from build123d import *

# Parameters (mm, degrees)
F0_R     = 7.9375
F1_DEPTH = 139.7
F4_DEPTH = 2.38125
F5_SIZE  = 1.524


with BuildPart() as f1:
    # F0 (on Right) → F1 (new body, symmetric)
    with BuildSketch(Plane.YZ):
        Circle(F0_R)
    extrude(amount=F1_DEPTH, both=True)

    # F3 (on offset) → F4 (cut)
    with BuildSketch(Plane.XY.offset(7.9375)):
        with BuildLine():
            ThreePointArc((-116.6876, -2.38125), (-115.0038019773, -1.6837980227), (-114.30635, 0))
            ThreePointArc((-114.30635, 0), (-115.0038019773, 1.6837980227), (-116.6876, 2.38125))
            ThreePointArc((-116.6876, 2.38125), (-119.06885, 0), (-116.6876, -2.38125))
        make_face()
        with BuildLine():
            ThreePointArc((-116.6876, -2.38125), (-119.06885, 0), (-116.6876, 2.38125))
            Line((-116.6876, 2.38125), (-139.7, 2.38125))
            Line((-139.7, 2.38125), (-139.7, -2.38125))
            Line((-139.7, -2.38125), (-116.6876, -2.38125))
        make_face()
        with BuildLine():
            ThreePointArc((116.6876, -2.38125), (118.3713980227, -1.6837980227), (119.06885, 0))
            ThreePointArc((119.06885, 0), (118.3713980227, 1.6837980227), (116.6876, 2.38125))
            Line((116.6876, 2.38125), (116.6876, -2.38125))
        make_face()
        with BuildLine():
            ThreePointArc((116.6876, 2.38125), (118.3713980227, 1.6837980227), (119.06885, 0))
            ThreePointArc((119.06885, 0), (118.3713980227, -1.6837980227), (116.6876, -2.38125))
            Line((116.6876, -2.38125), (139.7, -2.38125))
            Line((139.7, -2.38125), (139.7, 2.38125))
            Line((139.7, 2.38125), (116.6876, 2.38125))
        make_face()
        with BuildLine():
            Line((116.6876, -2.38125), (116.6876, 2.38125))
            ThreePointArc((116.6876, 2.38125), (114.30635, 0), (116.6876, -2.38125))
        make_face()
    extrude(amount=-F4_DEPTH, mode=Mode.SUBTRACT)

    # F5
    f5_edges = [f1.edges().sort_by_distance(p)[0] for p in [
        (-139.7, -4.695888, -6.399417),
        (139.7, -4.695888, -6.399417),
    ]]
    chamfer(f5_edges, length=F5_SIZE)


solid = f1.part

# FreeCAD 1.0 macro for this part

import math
import FreeCAD as App
import Part
import Sketcher
Q = App.Units.Quantity


def edges_at(feature, points):
    """Names of the edges that pass closest to the given points."""
    edges = feature.Shape.Edges
    near = lambda p: min(range(len(edges)), key=lambda i: edges[i].distToShape(Part.Vertex(*p))[0])
    return sorted({f"Edge{near(p) + 1}" for p in points})

doc = App.newDocument("Part")
body = doc.addObject("PartDesign::Body", "Body")

sketch1 = body.newObject("Sketcher::SketchObject", "Sketch")
sketch1.AttachmentSupport = (doc.getObject("YZ_Plane"), [""])
sketch1.MapMode = "FlatFace"
sketch1.addGeometry(Part.Circle(App.Vector(0, 0, 0), App.Vector(0, 0, 1), 8), False)
sketch1.addConstraint([
    Sketcher.Constraint("Coincident", 0, 3, -1, 1),
    Sketcher.Constraint("Diameter", 0, Q("0.625 in")),
])
pad1 = body.newObject("PartDesign::Pad", "Pad")
pad1.Profile = sketch1
pad1.Length = Q("11 in")
pad1.Midplane = True

sketch2 = body.newObject("Sketcher::SketchObject", "Sketch001")
sketch2.AttachmentSupport = (doc.getObject("XY_Plane"), [""])
sketch2.MapMode = "FlatFace"
sketch2.AttachmentOffset = App.Placement(App.Vector(0, 0, 0.3125 * 25.4), App.Rotation())
sketch2.addGeometry([
    Part.LineSegment(App.Vector(-116.7, 2.4, 0), App.Vector(-139.7, 2.4, 0)),
    Part.LineSegment(App.Vector(-139.7, 2.4, 0), App.Vector(-139.7, -2.4, 0)),
    Part.LineSegment(App.Vector(-139.7, -2.4, 0), App.Vector(-116.7, -2.4, 0)),
    Part.ArcOfCircle(Part.Circle(App.Vector(-116.7, 0, 0), App.Vector(0, 0, 1), 2.4), math.radians(-90), math.radians(90)),
    Part.LineSegment(App.Vector(116.7, -2.4, 0), App.Vector(139.7, -2.4, 0)),
    Part.LineSegment(App.Vector(139.7, -2.4, 0), App.Vector(139.7, 2.4, 0)),
    Part.LineSegment(App.Vector(139.7, 2.4, 0), App.Vector(116.7, 2.4, 0)),
    Part.ArcOfCircle(Part.Circle(App.Vector(116.7, 0, 0), App.Vector(0, 0, 1), 2.4), math.radians(90), math.radians(270)),
], False)
sketch2.addConstraint([
    Sketcher.Constraint("Coincident", 0, 2, 1, 1),
    Sketcher.Constraint("Coincident", 1, 2, 2, 1),
    Sketcher.Constraint("Tangent", 2, 2, 3, 1),
    Sketcher.Constraint("Tangent", 3, 2, 0, 1),
    Sketcher.Constraint("Coincident", 4, 2, 5, 1),
    Sketcher.Constraint("Coincident", 5, 2, 6, 1),
    Sketcher.Constraint("Tangent", 6, 2, 7, 1),
    Sketcher.Constraint("Tangent", 7, 2, 4, 1),
    Sketcher.Constraint("Horizontal", 0),
    Sketcher.Constraint("Vertical", 1),
    Sketcher.Constraint("Horizontal", 2),
    Sketcher.Constraint("Horizontal", 4),
    Sketcher.Constraint("Vertical", 5),
    Sketcher.Constraint("Horizontal", 6),
    Sketcher.Constraint("Equal", 3, 7),
    Sketcher.Constraint("Symmetric", 3, 3, 7, 3, -1, 1),
    Sketcher.Constraint("Symmetric", 1, 2, 4, 2, -2),
    Sketcher.Constraint("Radius", 3, Q("0.09375 in")),
    Sketcher.Constraint("DistanceX", 1, 2, 4, 2, Q("11 in")),
    Sketcher.Constraint("DistanceX", 0, 2, 0, 1, Q("0.906 in")),
])
pocket1 = body.newObject("PartDesign::Pocket", "Pocket")
pocket1.Profile = sketch2
pocket1.Length = Q("0.09375 in")
doc.recompute()

chamfer = body.newObject("PartDesign::Chamfer", "Chamfer")
chamfer.Base = (pocket1, edges_at(pocket1, [(-139.7, -4.696, -6.399), (139.7, -4.696, -6.399)]))
chamfer.Size = Q("0.06 in")

doc.recompute()
